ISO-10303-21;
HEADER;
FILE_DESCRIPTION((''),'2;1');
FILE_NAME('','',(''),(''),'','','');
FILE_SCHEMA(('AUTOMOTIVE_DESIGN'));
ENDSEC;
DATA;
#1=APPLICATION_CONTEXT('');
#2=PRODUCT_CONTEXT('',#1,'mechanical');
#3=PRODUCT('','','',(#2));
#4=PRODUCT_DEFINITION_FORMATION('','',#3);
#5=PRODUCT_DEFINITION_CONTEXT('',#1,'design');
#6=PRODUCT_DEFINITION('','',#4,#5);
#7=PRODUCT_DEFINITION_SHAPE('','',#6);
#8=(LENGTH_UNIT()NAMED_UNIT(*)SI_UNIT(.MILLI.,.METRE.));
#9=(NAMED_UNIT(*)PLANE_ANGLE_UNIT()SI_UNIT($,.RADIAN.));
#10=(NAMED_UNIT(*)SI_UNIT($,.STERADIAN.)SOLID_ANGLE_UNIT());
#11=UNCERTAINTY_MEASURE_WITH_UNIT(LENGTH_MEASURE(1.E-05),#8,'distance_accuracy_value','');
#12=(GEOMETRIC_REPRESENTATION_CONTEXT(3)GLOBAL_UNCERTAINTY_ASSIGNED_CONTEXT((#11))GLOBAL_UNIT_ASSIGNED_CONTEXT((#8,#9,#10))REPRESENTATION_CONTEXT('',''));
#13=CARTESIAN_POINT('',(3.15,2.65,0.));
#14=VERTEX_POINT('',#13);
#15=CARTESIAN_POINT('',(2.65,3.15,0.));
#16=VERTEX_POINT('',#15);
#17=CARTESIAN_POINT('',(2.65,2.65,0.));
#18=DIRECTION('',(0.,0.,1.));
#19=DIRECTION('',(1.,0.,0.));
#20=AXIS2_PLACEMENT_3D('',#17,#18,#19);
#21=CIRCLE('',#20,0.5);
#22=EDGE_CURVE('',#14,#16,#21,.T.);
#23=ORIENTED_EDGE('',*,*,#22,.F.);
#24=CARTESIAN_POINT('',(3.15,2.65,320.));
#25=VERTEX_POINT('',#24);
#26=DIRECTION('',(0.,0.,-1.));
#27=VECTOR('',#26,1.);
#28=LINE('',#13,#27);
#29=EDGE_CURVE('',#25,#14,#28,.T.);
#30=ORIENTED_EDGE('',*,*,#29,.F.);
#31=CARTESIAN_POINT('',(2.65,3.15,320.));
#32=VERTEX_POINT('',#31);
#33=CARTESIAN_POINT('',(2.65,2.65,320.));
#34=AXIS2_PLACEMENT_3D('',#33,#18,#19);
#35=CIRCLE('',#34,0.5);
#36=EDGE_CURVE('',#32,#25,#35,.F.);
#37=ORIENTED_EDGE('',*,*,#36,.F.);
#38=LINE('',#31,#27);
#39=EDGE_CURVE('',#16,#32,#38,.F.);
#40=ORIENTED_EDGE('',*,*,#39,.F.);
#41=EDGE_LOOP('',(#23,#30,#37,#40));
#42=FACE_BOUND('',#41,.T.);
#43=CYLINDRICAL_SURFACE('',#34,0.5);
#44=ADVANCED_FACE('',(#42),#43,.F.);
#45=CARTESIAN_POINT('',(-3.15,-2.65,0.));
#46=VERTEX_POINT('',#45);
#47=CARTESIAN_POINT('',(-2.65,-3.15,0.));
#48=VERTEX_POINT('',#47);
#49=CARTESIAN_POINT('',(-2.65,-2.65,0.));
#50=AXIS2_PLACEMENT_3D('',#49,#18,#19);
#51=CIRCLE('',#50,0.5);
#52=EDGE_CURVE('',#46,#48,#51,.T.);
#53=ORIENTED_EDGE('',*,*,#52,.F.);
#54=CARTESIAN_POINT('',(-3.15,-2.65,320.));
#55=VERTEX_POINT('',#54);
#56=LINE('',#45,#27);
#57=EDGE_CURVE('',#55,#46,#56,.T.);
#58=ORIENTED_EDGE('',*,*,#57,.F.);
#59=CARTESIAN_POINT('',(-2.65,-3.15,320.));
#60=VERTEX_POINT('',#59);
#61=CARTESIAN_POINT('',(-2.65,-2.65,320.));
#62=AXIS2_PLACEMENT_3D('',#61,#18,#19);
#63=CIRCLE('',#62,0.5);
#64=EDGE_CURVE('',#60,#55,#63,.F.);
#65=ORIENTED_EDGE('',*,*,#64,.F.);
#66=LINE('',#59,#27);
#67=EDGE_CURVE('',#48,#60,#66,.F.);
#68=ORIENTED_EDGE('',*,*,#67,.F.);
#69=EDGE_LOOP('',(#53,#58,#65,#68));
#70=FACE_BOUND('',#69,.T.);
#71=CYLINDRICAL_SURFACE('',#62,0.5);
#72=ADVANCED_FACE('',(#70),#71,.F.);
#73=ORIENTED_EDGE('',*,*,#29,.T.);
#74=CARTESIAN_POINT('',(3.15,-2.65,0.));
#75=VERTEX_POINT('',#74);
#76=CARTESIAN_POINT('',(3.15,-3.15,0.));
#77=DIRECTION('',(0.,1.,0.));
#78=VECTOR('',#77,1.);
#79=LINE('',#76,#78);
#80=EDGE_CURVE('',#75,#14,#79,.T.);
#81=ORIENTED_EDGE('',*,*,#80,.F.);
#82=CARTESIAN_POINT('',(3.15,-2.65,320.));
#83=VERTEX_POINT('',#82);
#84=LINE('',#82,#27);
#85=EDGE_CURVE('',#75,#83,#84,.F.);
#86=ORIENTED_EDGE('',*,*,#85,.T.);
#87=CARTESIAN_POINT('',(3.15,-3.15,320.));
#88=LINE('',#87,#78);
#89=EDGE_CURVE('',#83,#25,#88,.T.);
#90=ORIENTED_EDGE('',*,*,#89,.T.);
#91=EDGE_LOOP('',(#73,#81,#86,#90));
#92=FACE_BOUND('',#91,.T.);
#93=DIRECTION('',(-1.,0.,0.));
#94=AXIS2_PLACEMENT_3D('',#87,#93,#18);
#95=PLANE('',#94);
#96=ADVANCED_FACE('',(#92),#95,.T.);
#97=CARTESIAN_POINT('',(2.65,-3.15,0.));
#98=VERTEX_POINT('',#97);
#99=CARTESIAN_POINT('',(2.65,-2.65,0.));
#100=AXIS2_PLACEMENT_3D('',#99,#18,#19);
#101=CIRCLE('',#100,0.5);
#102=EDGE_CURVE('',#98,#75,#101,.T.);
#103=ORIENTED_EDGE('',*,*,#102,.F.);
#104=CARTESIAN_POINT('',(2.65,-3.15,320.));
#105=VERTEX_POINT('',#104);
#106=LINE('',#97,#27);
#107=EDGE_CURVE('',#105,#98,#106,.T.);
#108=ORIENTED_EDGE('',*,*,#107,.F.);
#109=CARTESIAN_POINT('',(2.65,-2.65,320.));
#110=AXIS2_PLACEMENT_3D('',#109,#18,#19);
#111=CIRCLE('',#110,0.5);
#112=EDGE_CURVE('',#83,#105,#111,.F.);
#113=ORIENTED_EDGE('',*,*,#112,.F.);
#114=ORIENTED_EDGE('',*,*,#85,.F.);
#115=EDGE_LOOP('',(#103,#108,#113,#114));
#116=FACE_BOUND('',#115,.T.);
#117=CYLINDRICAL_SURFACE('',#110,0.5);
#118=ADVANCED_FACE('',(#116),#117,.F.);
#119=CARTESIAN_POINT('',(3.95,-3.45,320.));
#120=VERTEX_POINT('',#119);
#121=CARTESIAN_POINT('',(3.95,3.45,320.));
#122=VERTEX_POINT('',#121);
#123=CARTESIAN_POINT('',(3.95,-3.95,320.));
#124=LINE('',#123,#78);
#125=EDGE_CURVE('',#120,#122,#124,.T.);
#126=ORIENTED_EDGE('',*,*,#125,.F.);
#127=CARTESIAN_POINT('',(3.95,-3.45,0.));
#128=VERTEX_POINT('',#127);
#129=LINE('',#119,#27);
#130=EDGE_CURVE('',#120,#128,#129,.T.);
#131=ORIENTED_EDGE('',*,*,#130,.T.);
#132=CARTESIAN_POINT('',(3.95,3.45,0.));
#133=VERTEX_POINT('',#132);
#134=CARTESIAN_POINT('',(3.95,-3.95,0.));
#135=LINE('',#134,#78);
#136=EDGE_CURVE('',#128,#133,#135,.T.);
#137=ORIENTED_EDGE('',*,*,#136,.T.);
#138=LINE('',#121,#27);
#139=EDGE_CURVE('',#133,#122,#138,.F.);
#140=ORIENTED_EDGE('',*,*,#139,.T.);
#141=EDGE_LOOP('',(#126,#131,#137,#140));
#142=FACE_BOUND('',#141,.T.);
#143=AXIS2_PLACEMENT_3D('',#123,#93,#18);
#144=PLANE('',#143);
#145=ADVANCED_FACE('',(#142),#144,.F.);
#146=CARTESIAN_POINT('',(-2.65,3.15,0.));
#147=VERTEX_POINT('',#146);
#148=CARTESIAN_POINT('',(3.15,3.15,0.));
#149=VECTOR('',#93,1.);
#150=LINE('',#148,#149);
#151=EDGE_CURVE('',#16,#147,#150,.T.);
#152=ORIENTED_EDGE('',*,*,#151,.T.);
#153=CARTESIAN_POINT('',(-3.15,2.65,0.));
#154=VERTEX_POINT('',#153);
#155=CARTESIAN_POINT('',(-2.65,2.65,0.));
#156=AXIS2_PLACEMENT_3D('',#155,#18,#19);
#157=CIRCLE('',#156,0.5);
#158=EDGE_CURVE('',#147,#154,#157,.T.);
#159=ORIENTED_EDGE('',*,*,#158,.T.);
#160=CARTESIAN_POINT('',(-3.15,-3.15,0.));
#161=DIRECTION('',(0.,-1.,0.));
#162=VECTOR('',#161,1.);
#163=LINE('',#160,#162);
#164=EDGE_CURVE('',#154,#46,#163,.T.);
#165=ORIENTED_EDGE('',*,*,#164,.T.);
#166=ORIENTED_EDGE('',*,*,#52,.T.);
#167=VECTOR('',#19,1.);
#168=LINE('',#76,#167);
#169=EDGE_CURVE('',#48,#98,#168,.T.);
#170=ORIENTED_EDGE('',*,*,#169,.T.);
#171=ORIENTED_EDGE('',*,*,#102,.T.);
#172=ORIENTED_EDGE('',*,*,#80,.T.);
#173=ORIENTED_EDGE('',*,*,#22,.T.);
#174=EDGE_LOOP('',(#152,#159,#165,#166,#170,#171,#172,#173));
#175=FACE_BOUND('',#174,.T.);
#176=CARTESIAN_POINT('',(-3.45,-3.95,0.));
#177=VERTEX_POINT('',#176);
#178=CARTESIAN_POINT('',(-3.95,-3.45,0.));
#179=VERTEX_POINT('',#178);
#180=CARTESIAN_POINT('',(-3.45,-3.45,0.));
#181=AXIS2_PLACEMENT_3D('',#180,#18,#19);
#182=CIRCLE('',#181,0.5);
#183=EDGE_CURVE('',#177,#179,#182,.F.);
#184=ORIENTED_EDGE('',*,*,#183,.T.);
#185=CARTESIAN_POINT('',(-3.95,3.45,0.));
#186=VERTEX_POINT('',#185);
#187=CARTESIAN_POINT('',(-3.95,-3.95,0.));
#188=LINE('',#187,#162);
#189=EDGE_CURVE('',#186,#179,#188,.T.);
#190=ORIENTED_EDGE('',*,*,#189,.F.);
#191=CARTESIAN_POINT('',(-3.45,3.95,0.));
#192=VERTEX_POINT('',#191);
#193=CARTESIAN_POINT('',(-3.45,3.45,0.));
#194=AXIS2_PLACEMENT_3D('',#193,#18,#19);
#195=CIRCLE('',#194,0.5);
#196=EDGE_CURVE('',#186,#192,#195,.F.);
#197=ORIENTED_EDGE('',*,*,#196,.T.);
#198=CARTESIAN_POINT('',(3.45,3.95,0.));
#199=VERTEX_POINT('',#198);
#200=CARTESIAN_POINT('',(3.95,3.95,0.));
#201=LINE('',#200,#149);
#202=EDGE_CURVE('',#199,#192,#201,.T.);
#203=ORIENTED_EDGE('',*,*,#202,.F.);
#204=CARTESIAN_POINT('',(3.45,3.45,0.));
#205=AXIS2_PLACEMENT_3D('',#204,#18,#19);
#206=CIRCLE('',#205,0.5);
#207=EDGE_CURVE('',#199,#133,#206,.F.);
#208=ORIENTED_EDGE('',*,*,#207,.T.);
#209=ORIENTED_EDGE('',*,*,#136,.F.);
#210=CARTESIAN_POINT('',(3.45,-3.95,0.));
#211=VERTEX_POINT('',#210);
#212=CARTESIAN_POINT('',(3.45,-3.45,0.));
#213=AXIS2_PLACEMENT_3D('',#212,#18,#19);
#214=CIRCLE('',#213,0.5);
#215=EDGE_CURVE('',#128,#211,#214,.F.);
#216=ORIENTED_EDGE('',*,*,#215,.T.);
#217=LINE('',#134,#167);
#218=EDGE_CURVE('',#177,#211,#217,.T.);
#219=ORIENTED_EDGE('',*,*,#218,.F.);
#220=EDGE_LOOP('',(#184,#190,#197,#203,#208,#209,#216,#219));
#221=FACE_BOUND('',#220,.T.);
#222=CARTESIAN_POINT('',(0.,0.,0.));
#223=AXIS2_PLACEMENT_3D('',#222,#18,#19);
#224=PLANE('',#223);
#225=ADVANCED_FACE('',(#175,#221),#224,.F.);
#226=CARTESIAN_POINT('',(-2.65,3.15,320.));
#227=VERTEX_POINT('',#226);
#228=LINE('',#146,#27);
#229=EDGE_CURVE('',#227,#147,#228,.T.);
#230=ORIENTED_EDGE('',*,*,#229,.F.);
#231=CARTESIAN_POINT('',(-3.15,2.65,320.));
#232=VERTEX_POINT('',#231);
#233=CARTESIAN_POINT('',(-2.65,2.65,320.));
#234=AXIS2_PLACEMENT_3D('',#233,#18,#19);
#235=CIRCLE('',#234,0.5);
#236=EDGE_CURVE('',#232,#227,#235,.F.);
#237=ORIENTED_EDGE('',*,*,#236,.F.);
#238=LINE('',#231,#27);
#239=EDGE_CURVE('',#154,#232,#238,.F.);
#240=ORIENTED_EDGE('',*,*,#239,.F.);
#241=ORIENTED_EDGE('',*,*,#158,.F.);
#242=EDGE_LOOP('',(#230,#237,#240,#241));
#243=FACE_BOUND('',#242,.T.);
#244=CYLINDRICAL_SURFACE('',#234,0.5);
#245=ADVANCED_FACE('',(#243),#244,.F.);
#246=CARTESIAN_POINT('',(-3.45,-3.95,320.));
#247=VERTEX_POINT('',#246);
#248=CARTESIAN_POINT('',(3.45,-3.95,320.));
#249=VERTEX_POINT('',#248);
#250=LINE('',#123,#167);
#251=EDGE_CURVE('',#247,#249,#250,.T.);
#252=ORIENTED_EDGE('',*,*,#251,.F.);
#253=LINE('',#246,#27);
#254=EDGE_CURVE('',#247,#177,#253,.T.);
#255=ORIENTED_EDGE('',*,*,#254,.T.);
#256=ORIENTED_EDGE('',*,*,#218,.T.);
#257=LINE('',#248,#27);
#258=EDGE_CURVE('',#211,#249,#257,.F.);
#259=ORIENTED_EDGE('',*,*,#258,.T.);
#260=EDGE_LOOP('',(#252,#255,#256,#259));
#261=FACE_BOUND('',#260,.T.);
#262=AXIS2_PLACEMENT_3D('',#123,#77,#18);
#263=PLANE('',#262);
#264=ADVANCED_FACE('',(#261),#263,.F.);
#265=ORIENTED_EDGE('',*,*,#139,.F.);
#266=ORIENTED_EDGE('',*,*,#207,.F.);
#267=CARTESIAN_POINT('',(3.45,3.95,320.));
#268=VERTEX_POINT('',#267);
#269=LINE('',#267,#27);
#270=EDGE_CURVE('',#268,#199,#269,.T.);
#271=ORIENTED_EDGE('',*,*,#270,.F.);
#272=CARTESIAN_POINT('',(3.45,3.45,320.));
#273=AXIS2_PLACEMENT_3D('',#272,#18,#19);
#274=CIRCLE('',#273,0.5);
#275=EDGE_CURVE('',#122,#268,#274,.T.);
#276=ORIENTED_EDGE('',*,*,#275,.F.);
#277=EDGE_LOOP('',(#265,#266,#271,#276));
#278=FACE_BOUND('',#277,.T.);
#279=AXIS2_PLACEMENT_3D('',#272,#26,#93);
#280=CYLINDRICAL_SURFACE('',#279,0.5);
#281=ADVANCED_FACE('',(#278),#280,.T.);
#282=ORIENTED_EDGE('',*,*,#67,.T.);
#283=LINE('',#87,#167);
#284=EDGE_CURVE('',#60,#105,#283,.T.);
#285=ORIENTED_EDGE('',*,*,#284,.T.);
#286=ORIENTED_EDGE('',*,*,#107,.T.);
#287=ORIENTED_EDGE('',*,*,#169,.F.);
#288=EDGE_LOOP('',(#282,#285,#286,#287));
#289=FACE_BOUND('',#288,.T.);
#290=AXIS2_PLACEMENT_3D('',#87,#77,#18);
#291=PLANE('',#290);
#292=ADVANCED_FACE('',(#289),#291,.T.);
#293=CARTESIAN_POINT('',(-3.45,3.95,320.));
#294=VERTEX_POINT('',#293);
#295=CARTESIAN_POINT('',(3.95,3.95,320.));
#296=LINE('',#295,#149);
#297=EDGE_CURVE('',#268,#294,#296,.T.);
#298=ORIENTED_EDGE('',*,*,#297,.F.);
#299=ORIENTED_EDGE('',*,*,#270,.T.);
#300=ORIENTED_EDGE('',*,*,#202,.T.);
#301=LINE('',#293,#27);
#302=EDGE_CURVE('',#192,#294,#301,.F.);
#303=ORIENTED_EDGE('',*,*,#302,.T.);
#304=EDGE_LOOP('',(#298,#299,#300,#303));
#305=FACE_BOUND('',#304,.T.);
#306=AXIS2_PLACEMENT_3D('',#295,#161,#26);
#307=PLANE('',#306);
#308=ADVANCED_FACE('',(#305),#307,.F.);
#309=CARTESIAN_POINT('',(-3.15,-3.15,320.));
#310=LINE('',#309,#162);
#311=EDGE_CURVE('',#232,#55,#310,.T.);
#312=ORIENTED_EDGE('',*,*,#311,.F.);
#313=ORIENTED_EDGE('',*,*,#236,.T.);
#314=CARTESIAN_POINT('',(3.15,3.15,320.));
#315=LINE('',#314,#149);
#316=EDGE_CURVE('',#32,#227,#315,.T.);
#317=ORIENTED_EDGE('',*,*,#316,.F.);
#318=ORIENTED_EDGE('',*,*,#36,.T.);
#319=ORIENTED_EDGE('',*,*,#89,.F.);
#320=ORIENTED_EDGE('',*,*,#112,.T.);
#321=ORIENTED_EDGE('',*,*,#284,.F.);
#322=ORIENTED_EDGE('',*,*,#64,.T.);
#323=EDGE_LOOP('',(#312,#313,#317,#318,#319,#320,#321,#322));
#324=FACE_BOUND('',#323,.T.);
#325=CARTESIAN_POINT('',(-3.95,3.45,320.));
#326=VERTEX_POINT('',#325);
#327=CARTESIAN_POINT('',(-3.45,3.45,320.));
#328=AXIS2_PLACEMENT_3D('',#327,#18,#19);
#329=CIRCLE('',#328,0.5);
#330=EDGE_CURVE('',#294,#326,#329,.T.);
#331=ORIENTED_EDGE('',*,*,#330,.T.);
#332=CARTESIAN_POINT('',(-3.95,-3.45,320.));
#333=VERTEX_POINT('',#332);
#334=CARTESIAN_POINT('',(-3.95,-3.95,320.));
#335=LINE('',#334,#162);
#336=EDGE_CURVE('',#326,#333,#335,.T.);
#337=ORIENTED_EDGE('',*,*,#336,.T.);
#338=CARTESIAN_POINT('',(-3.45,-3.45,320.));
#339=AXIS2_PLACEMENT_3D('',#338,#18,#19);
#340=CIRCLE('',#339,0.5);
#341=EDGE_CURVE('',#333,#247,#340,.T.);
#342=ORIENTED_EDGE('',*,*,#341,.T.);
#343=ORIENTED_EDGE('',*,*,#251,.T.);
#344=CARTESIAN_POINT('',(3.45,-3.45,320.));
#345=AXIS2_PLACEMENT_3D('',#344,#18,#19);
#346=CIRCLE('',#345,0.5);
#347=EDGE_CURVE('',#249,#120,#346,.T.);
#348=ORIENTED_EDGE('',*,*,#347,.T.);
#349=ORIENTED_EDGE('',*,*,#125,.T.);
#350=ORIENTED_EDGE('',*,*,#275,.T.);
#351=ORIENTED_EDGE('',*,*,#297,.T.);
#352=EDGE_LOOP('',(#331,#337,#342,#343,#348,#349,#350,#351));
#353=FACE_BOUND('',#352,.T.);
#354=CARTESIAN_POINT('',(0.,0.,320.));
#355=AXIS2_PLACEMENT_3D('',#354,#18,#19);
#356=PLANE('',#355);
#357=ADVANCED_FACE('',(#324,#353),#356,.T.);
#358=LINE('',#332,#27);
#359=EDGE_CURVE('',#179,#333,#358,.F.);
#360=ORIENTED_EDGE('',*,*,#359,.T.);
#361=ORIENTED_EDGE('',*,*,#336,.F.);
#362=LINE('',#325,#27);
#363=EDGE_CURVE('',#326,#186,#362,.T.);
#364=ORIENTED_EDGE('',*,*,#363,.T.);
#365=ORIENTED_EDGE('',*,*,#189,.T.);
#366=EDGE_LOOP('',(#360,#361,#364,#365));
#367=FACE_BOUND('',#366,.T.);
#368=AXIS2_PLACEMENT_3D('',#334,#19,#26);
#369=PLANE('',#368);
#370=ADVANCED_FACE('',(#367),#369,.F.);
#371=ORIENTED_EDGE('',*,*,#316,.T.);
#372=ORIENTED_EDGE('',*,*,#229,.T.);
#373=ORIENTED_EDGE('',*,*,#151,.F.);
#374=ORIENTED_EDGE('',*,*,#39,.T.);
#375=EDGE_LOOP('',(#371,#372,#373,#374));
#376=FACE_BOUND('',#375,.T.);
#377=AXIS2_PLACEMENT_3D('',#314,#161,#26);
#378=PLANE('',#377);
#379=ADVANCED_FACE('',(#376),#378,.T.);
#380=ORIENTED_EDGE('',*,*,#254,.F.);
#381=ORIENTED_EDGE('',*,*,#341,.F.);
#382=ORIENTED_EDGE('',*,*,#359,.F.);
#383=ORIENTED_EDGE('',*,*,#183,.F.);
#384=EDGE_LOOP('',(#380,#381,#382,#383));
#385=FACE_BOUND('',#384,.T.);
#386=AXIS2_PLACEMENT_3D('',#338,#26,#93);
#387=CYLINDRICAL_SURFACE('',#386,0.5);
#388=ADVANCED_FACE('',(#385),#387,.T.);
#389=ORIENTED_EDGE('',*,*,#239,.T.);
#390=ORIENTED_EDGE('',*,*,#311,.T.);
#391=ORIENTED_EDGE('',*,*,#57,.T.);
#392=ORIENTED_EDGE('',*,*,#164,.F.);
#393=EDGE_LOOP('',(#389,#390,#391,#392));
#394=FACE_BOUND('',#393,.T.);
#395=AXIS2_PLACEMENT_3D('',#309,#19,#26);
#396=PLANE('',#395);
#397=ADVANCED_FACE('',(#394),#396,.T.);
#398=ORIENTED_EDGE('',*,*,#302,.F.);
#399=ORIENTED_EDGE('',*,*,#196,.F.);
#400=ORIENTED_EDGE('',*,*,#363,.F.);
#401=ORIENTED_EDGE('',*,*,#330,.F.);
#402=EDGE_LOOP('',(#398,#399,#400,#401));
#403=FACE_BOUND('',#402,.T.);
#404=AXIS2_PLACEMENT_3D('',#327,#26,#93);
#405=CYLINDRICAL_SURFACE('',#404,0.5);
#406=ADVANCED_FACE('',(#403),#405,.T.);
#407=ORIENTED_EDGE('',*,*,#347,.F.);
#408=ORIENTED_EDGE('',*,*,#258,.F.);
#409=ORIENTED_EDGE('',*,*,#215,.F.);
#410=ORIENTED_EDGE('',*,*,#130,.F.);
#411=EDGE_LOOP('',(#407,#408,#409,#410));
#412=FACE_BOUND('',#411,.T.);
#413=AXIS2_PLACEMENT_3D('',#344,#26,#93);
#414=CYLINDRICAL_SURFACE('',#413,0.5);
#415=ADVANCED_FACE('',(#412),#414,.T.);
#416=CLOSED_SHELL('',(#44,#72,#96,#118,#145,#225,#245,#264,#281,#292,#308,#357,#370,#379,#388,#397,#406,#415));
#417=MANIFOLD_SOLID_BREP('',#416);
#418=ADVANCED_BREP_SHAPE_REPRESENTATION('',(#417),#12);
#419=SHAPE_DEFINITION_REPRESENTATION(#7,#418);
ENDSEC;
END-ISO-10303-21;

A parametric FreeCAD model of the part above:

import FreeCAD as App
import Part
import Sketcher


def edges_at(feature, points):
    """Names of the edges that pass closest to the given points."""
    edges = feature.Shape.Edges
    near = lambda p: min(range(len(edges)), key=lambda i: edges[i].distToShape(Part.Vertex(*p))[0])
    return sorted({f"Edge{near(p) + 1}" for p in points})

doc = App.newDocument("Part")
params = doc.addObject("Spreadsheet::Sheet", "Params")
for row, (alias, value) in enumerate([
    ("sketch1_width", "7.9 mm"),
    ("sketch1_width2", "6.3 mm"),
    ("pad1_length", "320 mm"),
    ("fillet_radius", "0.5 mm"),
], start=1):
    params.set(f"A{row}", alias)
    params.set(f"B{row}", "=" + value)
    params.setAlias(f"B{row}", alias)

body = doc.addObject("PartDesign::Body", "Body")

# Sketch on XY plane
sketch1 = body.newObject("Sketcher::SketchObject", "Sketch")
sketch1.AttachmentSupport = (doc.getObject("XY_Plane"), [""])
sketch1.MapMode = "FlatFace"
sketch1.addGeometry(Part.LineSegment(App.Vector(-3.95, 3.95, 0), App.Vector(-3.95, -3.95, 0)), False)
sketch1.addGeometry(Part.LineSegment(App.Vector(-3.95, -3.95, 0), App.Vector(3.95, -3.95, 0)), False)
sketch1.addGeometry(Part.LineSegment(App.Vector(3.95, -3.95, 0), App.Vector(3.95, 3.95, 0)), False)
sketch1.addGeometry(Part.LineSegment(App.Vector(3.95, 3.95, 0), App.Vector(-3.95, 3.95, 0)), False)
sketch1.addGeometry(Part.LineSegment(App.Vector(3.15, -3.15, 0), App.Vector(-3.15, -3.15, 0)), False)
sketch1.addGeometry(Part.LineSegment(App.Vector(-3.15, -3.15, 0), App.Vector(-3.15, 3.15, 0)), False)
sketch1.addGeometry(Part.LineSegment(App.Vector(-3.15, 3.15, 0), App.Vector(3.15, 3.15, 0)), False)
sketch1.addGeometry(Part.LineSegment(App.Vector(3.15, 3.15, 0), App.Vector(3.15, -3.15, 0)), False)
sketch1.addConstraint(Sketcher.Constraint("Coincident", 0, 2, 1, 1))
sketch1.addConstraint(Sketcher.Constraint("Coincident", 1, 2, 2, 1))
sketch1.addConstraint(Sketcher.Constraint("Coincident", 2, 2, 3, 1))
sketch1.addConstraint(Sketcher.Constraint("Coincident", 3, 2, 0, 1))
sketch1.addConstraint(Sketcher.Constraint("Coincident", 4, 2, 5, 1))
sketch1.addConstraint(Sketcher.Constraint("Coincident", 5, 2, 6, 1))
sketch1.addConstraint(Sketcher.Constraint("Coincident", 6, 2, 7, 1))
sketch1.addConstraint(Sketcher.Constraint("Coincident", 7, 2, 4, 1))
sketch1.addConstraint(Sketcher.Constraint("Vertical", 0))
sketch1.addConstraint(Sketcher.Constraint("Horizontal", 1))
sketch1.addConstraint(Sketcher.Constraint("Vertical", 2))
sketch1.addConstraint(Sketcher.Constraint("Horizontal", 3))
sketch1.addConstraint(Sketcher.Constraint("Horizontal", 4))
sketch1.addConstraint(Sketcher.Constraint("Vertical", 5))
sketch1.addConstraint(Sketcher.Constraint("Horizontal", 6))
sketch1.addConstraint(Sketcher.Constraint("Vertical", 7))
sketch1.addConstraint(Sketcher.Constraint("Symmetric", 0, 2, 2, 2, -1, 1))
sketch1.addConstraint(Sketcher.Constraint("Symmetric", 4, 2, 6, 2, -1, 1))
sketch1.addConstraint(Sketcher.Constraint("Equal", 3, 0))
sketch1.addConstraint(Sketcher.Constraint("Equal", 6, 5))
sketch1.addConstraint(Sketcher.Constraint("DistanceX", 1, 1, 1, 2, 7.9))
sketch1.addConstraint(Sketcher.Constraint("DistanceX", 4, 2, 4, 1, 6.3))
sketch1.setExpression("Constraints[20]", "Params.sketch1_width")
sketch1.setExpression("Constraints[21]", "Params.sketch1_width2")
pad1 = body.newObject("PartDesign::Pad", "Pad")
pad1.Profile = sketch1
pad1.setExpression("Length", "Params.pad1_length")
doc.recompute()

fillet = body.newObject("PartDesign::Fillet", "Fillet")
fillet.Base = (pad1, edges_at(pad1, [
    (-3.15, 3.15, 160),
    (-3.15, -3.15, 160),
    (3.15, -3.15, 160),
    (3.15, 3.15, 160),
    (-3.95, 3.95, 160),
    (3.95, 3.95, 160),
    (3.95, -3.95, 160),
    (-3.95, -3.95, 160),
]))
fillet.setExpression("Radius", "Params.fillet_radius")

doc.recompute()
